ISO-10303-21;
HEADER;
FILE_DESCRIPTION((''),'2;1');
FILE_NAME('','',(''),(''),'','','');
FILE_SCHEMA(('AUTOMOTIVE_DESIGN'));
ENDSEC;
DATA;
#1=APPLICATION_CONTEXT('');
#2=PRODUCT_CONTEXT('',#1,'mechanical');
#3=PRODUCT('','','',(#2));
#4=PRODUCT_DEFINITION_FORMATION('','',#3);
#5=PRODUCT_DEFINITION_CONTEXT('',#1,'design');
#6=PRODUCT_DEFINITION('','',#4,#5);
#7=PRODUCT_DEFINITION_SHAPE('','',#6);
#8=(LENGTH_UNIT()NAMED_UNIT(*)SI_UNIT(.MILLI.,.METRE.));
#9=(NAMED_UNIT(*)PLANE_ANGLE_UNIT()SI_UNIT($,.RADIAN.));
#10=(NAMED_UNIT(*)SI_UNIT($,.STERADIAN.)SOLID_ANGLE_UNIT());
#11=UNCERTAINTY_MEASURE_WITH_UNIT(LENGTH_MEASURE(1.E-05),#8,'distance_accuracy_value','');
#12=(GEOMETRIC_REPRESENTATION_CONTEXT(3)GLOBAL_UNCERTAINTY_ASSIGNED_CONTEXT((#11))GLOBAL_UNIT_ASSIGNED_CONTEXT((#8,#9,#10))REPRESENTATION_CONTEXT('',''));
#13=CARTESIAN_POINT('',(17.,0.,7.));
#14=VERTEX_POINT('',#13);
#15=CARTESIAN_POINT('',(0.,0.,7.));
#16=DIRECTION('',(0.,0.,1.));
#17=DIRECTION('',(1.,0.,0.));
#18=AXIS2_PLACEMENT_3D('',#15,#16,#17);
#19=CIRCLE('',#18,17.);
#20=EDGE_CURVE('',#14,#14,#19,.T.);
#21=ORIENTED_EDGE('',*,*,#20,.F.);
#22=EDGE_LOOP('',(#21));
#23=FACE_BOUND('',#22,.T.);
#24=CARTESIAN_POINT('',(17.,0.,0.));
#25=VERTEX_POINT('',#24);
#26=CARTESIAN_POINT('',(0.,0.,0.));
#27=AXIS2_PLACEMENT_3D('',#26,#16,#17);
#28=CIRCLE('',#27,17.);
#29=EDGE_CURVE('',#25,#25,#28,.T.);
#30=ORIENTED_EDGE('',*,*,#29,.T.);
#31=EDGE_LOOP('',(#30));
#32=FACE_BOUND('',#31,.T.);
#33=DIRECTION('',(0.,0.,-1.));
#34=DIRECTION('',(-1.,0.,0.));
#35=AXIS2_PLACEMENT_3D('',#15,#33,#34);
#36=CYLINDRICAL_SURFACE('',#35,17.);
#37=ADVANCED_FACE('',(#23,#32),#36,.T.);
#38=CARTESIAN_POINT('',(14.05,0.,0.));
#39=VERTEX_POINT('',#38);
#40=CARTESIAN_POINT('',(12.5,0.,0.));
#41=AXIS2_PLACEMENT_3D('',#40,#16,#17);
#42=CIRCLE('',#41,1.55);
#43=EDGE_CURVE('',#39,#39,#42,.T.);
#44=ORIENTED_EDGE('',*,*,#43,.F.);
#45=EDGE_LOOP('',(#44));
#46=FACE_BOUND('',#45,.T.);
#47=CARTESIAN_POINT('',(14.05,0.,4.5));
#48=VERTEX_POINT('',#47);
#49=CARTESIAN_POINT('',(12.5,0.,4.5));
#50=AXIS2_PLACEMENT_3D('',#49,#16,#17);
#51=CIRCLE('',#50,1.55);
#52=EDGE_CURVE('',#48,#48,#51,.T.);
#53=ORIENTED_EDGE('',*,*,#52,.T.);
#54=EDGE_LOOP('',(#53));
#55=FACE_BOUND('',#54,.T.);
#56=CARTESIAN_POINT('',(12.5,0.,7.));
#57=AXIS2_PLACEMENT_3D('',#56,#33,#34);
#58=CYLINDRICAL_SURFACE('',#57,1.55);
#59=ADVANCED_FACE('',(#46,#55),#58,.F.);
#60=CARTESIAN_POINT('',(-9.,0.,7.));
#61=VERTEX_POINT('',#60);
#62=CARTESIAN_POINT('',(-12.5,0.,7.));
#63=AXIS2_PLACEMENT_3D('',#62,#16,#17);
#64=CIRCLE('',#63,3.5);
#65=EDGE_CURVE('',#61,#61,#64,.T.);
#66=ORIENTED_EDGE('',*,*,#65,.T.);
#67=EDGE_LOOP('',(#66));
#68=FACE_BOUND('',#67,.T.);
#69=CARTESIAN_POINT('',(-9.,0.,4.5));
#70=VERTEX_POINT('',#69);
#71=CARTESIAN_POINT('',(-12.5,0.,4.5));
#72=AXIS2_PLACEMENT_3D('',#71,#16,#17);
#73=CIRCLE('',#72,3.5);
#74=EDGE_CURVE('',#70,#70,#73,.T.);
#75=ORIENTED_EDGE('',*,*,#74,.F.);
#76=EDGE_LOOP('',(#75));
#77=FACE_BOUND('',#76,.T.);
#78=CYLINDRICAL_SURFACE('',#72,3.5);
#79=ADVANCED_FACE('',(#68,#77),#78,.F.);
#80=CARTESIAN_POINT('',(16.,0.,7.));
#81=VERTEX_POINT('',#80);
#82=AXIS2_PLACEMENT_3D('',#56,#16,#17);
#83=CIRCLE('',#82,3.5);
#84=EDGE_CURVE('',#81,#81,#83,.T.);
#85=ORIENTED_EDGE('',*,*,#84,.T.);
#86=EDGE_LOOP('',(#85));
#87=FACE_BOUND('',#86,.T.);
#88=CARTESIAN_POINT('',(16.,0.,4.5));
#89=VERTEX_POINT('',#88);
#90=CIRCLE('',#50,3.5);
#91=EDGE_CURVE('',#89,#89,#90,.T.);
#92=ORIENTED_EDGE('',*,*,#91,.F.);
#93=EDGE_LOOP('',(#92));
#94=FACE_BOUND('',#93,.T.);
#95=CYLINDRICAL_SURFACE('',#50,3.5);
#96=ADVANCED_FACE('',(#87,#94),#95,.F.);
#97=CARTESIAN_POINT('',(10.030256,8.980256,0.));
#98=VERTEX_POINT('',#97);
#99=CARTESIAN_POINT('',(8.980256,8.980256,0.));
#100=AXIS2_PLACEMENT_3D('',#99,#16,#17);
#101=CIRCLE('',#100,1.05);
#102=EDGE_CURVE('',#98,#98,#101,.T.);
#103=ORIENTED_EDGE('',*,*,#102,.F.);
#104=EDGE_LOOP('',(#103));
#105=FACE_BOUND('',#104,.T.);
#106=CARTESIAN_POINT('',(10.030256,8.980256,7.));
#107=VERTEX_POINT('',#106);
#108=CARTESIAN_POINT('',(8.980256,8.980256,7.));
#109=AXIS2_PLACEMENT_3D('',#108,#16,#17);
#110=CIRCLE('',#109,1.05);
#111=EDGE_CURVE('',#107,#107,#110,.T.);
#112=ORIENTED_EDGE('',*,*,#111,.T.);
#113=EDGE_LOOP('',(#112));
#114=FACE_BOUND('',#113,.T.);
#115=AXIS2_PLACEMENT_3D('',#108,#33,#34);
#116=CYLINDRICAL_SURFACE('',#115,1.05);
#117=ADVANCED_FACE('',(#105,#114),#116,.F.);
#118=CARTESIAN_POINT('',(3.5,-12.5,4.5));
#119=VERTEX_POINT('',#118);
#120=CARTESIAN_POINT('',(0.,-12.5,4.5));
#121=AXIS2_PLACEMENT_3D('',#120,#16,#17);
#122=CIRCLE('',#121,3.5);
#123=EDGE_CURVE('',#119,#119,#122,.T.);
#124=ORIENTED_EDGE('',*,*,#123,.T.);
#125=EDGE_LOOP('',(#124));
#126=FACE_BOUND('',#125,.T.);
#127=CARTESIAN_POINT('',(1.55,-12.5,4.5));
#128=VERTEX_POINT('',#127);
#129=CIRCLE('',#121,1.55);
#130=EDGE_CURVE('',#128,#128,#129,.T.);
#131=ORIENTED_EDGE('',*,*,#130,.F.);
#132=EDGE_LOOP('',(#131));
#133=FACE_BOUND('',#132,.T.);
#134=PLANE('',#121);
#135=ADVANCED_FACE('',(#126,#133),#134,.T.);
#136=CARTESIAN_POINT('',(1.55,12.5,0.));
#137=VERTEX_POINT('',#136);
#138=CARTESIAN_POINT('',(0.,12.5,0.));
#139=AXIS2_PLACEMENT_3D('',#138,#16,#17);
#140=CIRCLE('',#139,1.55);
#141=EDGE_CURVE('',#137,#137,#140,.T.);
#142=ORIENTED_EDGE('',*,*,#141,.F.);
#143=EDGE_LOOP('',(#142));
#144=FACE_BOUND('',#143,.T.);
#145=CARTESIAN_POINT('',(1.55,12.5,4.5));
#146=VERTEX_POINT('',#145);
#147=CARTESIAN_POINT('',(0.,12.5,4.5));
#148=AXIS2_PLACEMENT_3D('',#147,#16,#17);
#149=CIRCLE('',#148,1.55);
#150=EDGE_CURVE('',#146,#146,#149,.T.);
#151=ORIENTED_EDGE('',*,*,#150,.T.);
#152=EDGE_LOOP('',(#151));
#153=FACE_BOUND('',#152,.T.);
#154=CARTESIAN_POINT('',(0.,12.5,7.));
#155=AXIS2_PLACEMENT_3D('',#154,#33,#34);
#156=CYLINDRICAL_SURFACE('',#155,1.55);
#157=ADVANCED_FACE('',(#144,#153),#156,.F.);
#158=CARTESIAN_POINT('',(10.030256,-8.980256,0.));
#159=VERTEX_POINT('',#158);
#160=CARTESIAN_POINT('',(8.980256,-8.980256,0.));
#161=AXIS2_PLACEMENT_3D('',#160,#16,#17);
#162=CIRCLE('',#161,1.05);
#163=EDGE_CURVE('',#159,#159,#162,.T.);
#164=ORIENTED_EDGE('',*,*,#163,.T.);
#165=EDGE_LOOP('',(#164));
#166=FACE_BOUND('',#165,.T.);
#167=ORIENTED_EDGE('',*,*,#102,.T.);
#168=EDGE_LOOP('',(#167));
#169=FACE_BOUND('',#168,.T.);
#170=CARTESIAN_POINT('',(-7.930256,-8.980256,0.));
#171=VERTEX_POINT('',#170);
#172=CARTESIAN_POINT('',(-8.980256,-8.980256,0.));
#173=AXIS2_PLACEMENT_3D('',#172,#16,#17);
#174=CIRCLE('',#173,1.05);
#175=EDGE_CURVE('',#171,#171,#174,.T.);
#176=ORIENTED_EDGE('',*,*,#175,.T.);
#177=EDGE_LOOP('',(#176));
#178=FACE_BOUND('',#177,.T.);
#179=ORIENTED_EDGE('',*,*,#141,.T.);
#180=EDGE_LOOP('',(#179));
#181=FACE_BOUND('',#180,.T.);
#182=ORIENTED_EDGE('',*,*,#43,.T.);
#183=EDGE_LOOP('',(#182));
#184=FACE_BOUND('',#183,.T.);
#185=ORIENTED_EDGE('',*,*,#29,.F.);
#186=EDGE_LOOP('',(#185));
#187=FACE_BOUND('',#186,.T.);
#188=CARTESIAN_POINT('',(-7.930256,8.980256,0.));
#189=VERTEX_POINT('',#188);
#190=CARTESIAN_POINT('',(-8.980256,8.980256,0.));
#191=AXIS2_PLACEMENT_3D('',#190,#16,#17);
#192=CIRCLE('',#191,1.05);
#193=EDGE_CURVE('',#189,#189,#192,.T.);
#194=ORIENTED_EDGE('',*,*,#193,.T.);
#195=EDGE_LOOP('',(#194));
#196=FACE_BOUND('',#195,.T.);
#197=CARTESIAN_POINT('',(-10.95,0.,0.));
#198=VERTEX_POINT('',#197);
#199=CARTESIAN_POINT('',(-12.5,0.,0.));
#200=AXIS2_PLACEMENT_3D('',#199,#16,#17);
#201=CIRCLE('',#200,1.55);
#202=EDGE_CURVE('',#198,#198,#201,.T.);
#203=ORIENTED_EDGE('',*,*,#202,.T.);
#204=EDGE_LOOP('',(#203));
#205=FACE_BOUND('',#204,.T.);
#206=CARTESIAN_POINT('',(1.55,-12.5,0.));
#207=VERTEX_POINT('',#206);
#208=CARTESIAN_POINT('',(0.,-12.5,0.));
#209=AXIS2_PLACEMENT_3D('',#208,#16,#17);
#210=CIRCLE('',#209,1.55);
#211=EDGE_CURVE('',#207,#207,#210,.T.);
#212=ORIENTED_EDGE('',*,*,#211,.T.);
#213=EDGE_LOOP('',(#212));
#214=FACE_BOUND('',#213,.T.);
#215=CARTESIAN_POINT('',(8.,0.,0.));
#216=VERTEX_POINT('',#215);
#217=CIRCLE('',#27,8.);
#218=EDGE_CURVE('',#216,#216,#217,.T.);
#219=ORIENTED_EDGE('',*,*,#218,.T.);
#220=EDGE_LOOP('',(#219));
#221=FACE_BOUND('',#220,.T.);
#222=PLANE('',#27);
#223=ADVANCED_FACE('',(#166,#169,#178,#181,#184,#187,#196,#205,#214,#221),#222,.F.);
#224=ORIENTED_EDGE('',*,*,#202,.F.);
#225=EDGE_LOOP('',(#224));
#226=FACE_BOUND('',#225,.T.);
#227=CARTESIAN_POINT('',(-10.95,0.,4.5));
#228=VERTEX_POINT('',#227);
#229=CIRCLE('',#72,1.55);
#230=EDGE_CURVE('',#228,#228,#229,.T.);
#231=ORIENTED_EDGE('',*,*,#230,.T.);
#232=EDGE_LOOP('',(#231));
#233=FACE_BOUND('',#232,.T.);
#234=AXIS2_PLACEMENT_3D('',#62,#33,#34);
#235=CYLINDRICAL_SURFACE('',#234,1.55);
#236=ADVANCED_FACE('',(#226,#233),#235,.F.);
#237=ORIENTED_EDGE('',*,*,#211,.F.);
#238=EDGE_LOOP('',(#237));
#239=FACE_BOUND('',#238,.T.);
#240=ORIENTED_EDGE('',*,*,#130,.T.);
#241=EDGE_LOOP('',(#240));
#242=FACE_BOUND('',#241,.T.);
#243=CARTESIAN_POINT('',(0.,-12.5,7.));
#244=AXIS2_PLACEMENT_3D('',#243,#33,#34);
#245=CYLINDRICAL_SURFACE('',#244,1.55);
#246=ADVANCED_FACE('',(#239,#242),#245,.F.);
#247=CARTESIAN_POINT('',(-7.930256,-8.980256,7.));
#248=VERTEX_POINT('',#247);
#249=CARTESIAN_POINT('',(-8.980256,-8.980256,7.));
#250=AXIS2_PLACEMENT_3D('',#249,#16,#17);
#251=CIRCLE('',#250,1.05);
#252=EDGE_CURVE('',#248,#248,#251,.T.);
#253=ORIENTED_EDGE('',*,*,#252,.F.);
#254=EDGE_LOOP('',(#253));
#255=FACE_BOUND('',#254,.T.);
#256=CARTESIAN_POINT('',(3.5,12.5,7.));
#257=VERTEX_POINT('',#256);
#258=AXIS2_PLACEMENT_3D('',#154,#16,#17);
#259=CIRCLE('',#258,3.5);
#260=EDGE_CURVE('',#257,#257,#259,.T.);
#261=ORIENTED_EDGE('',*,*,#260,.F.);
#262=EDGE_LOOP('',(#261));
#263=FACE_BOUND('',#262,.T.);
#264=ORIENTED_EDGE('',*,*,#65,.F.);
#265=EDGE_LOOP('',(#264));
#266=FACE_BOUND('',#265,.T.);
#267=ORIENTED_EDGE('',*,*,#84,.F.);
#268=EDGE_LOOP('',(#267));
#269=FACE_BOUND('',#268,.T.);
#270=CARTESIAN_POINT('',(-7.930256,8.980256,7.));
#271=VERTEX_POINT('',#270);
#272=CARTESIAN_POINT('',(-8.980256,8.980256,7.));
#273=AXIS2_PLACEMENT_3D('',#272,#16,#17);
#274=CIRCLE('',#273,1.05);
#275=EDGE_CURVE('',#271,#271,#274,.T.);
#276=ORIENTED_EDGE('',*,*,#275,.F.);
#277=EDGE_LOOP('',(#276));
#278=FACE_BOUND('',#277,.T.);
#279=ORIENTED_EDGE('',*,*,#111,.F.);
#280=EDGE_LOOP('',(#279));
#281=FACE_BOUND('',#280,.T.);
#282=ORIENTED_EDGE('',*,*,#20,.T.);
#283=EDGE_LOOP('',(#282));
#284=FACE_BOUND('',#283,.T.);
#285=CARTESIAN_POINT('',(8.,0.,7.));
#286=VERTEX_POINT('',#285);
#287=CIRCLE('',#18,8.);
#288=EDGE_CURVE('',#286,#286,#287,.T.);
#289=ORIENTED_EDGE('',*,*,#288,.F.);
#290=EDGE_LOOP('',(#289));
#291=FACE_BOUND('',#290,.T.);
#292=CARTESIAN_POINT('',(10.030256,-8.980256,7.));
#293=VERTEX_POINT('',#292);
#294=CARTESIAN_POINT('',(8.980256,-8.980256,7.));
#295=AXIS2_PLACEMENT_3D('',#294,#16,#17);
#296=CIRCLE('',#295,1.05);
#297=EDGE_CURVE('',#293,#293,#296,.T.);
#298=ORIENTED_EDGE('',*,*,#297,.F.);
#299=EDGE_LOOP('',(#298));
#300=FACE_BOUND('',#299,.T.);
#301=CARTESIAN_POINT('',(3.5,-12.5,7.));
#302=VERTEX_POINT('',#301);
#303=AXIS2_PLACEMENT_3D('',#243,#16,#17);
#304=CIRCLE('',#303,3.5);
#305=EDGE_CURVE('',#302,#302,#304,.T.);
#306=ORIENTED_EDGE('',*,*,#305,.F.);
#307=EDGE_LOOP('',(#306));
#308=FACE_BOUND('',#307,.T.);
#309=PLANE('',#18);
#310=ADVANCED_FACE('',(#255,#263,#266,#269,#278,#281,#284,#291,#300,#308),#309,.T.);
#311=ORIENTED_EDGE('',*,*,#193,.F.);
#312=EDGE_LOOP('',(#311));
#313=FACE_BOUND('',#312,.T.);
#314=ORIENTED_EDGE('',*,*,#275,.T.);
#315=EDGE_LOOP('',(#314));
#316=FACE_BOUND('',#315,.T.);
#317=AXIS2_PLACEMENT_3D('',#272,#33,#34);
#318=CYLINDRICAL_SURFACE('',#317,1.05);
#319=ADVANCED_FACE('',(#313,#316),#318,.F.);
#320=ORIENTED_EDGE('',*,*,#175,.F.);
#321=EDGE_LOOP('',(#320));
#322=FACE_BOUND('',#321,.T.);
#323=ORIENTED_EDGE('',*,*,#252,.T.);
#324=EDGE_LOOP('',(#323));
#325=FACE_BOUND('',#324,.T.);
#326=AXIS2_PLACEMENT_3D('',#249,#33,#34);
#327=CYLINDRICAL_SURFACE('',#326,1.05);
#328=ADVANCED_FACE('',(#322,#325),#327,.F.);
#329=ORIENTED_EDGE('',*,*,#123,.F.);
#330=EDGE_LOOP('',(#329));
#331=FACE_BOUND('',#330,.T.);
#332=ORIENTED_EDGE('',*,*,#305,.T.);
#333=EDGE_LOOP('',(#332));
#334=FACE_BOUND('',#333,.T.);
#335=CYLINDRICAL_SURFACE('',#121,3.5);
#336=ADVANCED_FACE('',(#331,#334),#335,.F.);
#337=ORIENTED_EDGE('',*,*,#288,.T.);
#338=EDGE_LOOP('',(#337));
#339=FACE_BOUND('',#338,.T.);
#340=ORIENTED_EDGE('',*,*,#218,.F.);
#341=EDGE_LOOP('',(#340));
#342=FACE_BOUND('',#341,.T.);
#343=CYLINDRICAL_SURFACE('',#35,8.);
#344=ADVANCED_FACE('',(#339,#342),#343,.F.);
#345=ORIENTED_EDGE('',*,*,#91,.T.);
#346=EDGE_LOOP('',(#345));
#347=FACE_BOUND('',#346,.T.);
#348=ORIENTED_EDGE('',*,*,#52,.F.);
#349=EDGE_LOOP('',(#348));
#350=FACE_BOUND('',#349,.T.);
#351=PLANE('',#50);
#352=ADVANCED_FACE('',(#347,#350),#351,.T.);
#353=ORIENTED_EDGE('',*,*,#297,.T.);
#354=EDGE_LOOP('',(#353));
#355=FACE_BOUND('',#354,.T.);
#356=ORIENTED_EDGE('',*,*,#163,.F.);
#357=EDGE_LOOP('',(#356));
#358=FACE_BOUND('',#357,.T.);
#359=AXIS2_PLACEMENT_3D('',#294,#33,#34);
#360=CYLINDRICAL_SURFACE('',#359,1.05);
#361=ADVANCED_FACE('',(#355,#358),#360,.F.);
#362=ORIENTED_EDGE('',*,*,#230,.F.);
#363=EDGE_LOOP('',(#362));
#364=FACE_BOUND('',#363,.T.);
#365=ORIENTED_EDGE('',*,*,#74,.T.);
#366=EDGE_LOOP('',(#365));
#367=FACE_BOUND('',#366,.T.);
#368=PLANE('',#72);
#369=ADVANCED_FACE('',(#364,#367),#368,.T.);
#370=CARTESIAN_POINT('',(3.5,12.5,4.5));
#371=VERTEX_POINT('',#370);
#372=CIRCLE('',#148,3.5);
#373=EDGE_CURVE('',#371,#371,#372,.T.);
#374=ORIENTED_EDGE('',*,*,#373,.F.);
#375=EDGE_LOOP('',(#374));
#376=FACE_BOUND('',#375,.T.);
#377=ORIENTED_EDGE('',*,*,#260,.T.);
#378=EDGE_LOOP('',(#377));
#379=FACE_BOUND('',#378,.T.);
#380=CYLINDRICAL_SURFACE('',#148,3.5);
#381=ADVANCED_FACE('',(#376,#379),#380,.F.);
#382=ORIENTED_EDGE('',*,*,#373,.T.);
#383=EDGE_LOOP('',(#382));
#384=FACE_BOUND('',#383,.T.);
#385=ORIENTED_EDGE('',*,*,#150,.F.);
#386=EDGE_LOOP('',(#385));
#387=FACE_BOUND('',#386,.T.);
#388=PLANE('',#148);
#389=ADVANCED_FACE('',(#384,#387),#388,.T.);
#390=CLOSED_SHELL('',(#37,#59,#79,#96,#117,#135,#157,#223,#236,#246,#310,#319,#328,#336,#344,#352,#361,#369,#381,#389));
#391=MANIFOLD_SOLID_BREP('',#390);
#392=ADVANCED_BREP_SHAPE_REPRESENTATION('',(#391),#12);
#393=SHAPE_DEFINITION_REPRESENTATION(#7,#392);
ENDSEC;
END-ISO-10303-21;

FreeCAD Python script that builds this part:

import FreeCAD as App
import Part
import Sketcher

V = App.Vector
Q = App.Units.Quantity

doc = App.newDocument("Part")
body = doc.addObject("PartDesign::Body", "Body")

sketch1 = body.newObject("Sketcher::SketchObject", "Sketch")
sketch1.AttachmentSupport = (doc.getObject("XY_Plane"), [""])
sketch1.MapMode = "FlatFace"
sketch1.addGeometry([
    Part.Circle(V(0, 0, 0), V(0, 0, 1), 17),
    Part.Circle(V(-8.980256, -8.980256, 0), V(0, 0, 1), 1.05),
    Part.Circle(V(0, -12.5, 0), V(0, 0, 1), 1.55),
    Part.Circle(V(8.980256, -8.980256, 0), V(0, 0, 1), 1.05),
    Part.Circle(V(-12.5, 0, 0), V(0, 0, 1), 1.55),
    Part.Circle(V(-8.980256, 8.980256, 0), V(0, 0, 1), 1.05),
    Part.Circle(V(0, 0, 0), V(0, 0, 1), 8),
    Part.Circle(V(12.5, 0, 0), V(0, 0, 1), 1.55),
    Part.Circle(V(0, 12.5, 0), V(0, 0, 1), 1.55),
    Part.Circle(V(8.980256, 8.980256, 0), V(0, 0, 1), 1.05),
], False)
sketch1.addConstraint([
    Sketcher.Constraint("Coincident", 0, 3, -1, 1),
    Sketcher.Constraint("Coincident", 6, 3, -1, 1),
    Sketcher.Constraint("Equal", 1, 3),
    Sketcher.Constraint("Equal", 2, 4),
    Sketcher.Constraint("Equal", 3, 5),
    Sketcher.Constraint("Equal", 4, 7),
    Sketcher.Constraint("Equal", 7, 8),
    Sketcher.Constraint("Equal", 5, 9),
    Sketcher.Constraint("Symmetric", 3, 3, 5, 3, -1, 1),
    Sketcher.Constraint("Symmetric", 4, 3, 7, 3, -1, 1),
    Sketcher.Constraint("Symmetric", 2, 3, 8, 3, -1, 1),
    Sketcher.Constraint("Symmetric", 1, 3, 9, 3, -1, 1),
    Sketcher.Constraint("Symmetric", 1, 3, 3, 3, -2),
    Sketcher.Constraint("PointOnObject", 2, 3, -2),
    Sketcher.Constraint("PointOnObject", 4, 3, -1),
    Sketcher.Constraint("Diameter", 0, Q("34 mm")),
    Sketcher.Constraint("Diameter", 6, Q("16 mm")),
    Sketcher.Constraint("Diameter", 1, Q("2.1 mm")),
    Sketcher.Constraint("Diameter", 2, Q("3.1 mm")),
    Sketcher.Constraint("DistanceY", 2, 3, -1, 1, Q("12.5 mm")),
    Sketcher.Constraint("DistanceX", 4, 3, -1, 1, Q("12.5 mm")),
    Sketcher.Constraint("DistanceX", 1, 3, -1, 1, Q("8.980256 mm")),
    Sketcher.Constraint("DistanceY", 1, 3, -1, 1, Q("8.980256 mm")),
])
pad1 = body.newObject("PartDesign::Pad", "Pad")
pad1.Profile = sketch1
pad1.Length = 7

sketch2 = body.newObject("Sketcher::SketchObject", "Sketch001")
sketch2.AttachmentSupport = (doc.getObject("XY_Plane"), [""])
sketch2.MapMode = "FlatFace"
sketch2.AttachmentOffset = App.Placement(V(0, 0, 7), App.Rotation())
sketch2.addGeometry([
    Part.Circle(V(0, 12.5, 0), V(0, 0, 1), 3.5),
    Part.Circle(V(12.5, 0, 0), V(0, 0, 1), 3.5),
    Part.Circle(V(0, -12.5, 0), V(0, 0, 1), 3.5),
    Part.Circle(V(-12.5, 0, 0), V(0, 0, 1), 3.5),
], False)
sketch2.addConstraint([
    Sketcher.Constraint("Equal", 0, 1),
    Sketcher.Constraint("Equal", 1, 2),
    Sketcher.Constraint("Equal", 2, 3),
    Sketcher.Constraint("Symmetric", 0, 3, 2, 3, -1, 1),
    Sketcher.Constraint("Symmetric", 1, 3, 3, 3, -1, 1),
    Sketcher.Constraint("PointOnObject", 0, 3, -2),
    Sketcher.Constraint("PointOnObject", 1, 3, -1),
    Sketcher.Constraint("Diameter", 0, Q("7 mm")),
    Sketcher.Constraint("DistanceY", 2, 3, 0, 3, Q("25 mm")),
    Sketcher.Constraint("DistanceX", 3, 3, 1, 3, Q("25 mm")),
])
pocket1 = body.newObject("PartDesign::Pocket", "Pocket")
pocket1.Profile = sketch2
pocket1.Length = 2.5

doc.recompute()
